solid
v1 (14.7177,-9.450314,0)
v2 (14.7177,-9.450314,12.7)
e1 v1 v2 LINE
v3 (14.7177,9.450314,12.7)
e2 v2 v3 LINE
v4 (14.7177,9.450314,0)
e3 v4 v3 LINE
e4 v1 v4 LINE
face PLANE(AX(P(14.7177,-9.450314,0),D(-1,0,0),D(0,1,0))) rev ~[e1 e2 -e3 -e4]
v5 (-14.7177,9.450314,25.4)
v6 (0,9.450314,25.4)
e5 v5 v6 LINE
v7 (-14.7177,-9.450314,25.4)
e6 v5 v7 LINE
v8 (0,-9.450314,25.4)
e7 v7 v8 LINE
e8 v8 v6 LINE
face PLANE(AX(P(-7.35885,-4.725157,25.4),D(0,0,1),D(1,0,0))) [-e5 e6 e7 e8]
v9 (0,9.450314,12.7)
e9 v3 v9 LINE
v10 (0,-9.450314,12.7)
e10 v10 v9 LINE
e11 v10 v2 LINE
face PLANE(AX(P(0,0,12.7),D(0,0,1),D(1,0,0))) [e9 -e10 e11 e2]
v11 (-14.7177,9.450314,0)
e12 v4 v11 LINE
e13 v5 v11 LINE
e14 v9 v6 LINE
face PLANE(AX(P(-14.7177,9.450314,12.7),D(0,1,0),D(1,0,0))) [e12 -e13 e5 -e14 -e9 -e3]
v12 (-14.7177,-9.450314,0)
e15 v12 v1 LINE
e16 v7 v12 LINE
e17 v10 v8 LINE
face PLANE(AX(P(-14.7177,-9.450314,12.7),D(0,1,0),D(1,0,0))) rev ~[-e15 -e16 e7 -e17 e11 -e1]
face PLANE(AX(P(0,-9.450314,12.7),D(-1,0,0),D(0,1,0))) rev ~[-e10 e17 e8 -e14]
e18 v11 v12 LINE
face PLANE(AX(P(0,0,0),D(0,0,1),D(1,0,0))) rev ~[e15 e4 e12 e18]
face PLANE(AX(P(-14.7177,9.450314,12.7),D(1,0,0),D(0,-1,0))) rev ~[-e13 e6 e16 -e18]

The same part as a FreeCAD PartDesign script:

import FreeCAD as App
import Part
import Sketcher
from FreeCAD import Vector
Q = App.Units.Quantity


def add_polygon(sketch, points):
    """Adds a closed chain of lines whose ends are joined by coincident constraints."""
    first, n = sketch.GeometryCount, len(points)
    for a, b in zip(points, points[1:] + points[:1]):
        sketch.addGeometry(Part.LineSegment(App.Vector(*a, 0), App.Vector(*b, 0)), False)
    for i in range(n):
        sketch.addConstraint(Sketcher.Constraint("Coincident", first + i, 2, first + (i + 1) % n, 1))

doc = App.newDocument("Part")
body = doc.addObject("PartDesign::Body", "Body")

# Sketch on XY plane
sketch1 = body.newObject("Sketcher::SketchObject", "Sketch")
sketch1.AttachmentSupport = (doc.getObject("XY_Plane"), [""])
sketch1.MapMode = "FlatFace"
add_polygon(sketch1, [(-15, -9), (15, -9), (15, 9), (-15, 9)])  # lines 0-3
sketch1.addConstraint([
    Sketcher.Constraint("Horizontal", 0),
    Sketcher.Constraint("Vertical", 1),
    Sketcher.Constraint("Horizontal", 2),
    Sketcher.Constraint("Vertical", 3),
    Sketcher.Constraint("Symmetric", 0, 2, 2, 2, -1, 1),
    Sketcher.Constraint("DistanceX", 0, 1, 0, 2, 29.4354),
    Sketcher.Constraint("DistanceY", 1, 1, 1, 2, 18.900628),
])
pad1 = body.newObject("PartDesign::Pad", "Pad")
pad1.Profile = sketch1
pad1.Length = Q("0.5 in")

# Sketch on XY plane
sketch2 = body.newObject("Sketcher::SketchObject", "Sketch001")
sketch2.AttachmentSupport = (doc.getObject("XY_Plane"), [""])
sketch2.MapMode = "FlatFace"
sketch2.AttachmentOffset = App.Placement(Vector(0, 0, 0.5 * 25.4), App.Rotation())
add_polygon(sketch2, [(-15, -9), (0, -9), (0, 9), (-15, 9)])  # lines 0-3
sketch2.addConstraint([
    Sketcher.Constraint("Horizontal", 0),
    Sketcher.Constraint("Vertical", 1),
    Sketcher.Constraint("Horizontal", 2),
    Sketcher.Constraint("Vertical", 3),
    Sketcher.Constraint("Symmetric", 0, 2, 1, 2, -1, 1),
    Sketcher.Constraint("DistanceX", 0, 1, 0, 2, 14.7177),
    Sketcher.Constraint("DistanceY", 1, 1, 1, 2, 18.900628),
])
pad2 = body.newObject("PartDesign::Pad", "Pad001")
pad2.Profile = sketch2
pad2.Length = Q("0.5 in")

doc.recompute()
